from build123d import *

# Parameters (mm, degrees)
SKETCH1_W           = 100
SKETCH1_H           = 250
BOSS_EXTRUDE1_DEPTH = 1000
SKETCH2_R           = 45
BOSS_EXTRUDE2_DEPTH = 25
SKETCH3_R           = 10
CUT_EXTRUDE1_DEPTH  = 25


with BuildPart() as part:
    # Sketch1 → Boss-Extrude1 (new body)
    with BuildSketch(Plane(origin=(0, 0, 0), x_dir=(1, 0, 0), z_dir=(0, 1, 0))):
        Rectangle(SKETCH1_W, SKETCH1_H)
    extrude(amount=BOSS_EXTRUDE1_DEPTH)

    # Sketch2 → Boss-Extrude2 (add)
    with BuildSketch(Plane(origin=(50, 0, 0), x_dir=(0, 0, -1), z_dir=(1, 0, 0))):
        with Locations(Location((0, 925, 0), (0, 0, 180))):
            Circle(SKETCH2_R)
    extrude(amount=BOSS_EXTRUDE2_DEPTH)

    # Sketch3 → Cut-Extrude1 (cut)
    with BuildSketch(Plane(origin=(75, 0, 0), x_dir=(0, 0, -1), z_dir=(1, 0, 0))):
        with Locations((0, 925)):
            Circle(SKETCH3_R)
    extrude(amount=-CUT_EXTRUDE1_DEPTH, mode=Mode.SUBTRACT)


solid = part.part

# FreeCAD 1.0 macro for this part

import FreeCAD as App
import Part
import Sketcher
Q = App.Units.Quantity

doc = App.newDocument("Part")
body = doc.addObject("PartDesign::Body", "Body")

# Sketch on XZ plane
sketch1 = doc.addObject("Sketcher::SketchObject", "Sketch")
body.addObject(sketch1)
sketch1.AttachmentSupport = (doc.XZ_Plane, [""])
sketch1.MapMode = "FlatFace"
sketch1.addGeometry(Part.LineSegment(App.Vector(-50, -125, 0), App.Vector(-50, 125, 0)), False)
sketch1.addGeometry(Part.LineSegment(App.Vector(-50, 125, 0), App.Vector(50, 125, 0)), False)
sketch1.addGeometry(Part.LineSegment(App.Vector(50, 125, 0), App.Vector(50, -125, 0)), False)
sketch1.addGeometry(Part.LineSegment(App.Vector(50, -125, 0), App.Vector(-50, -125, 0)), False)
sketch1.addConstraint(Sketcher.Constraint("Coincident", 0, 2, 1, 1))
sketch1.addConstraint(Sketcher.Constraint("Coincident", 1, 2, 2, 1))
sketch1.addConstraint(Sketcher.Constraint("Coincident", 2, 2, 3, 1))
sketch1.addConstraint(Sketcher.Constraint("Coincident", 3, 2, 0, 1))
sketch1.addConstraint(Sketcher.Constraint("Vertical", 0))
sketch1.addConstraint(Sketcher.Constraint("Horizontal", 1))
sketch1.addConstraint(Sketcher.Constraint("Vertical", 2))
sketch1.addConstraint(Sketcher.Constraint("Horizontal", 3))
sketch1.addConstraint(Sketcher.Constraint("Symmetric", 0, 2, 2, 2, -1, 1))
sketch1.addConstraint(Sketcher.Constraint("DistanceX", 1, 1, 1, 2, Q("100 mm")))
sketch1.addConstraint(Sketcher.Constraint("DistanceY", 0, 1, 0, 2, Q("250 mm")))
pad1 = doc.addObject("PartDesign::Pad", "Pad")
body.addObject(pad1)
pad1.Profile = sketch1
pad1.Length = 1000
pad1.Reversed = True

# Sketch on YZ plane
sketch2 = doc.addObject("Sketcher::SketchObject", "Sketch001")
body.addObject(sketch2)
sketch2.AttachmentSupport = (doc.YZ_Plane, [""])
sketch2.MapMode = "FlatFace"
sketch2.AttachmentOffset = App.Placement(App.Vector(0, 0, 50), App.Rotation())
sketch2.addGeometry(Part.Circle(App.Vector(925, 0, 0), App.Vector(0, 0, 1), 45), False)
sketch2.addConstraint(Sketcher.Constraint("PointOnObject", 0, 3, -1))
sketch2.addConstraint(Sketcher.Constraint("Diameter", 0, Q("90 mm")))
sketch2.addConstraint(Sketcher.Constraint("DistanceX", -1, 1, 0, 3, Q("925 mm")))
pad2 = doc.addObject("PartDesign::Pad", "Pad001")
body.addObject(pad2)
pad2.Profile = sketch2
pad2.Length = 25

# Sketch on YZ plane
sketch3 = doc.addObject("Sketcher::SketchObject", "Sketch002")
body.addObject(sketch3)
sketch3.AttachmentSupport = (doc.YZ_Plane, [""])
sketch3.MapMode = "FlatFace"
sketch3.AttachmentOffset = App.Placement(App.Vector(0, 0, 75), App.Rotation())
sketch3.addGeometry(Part.Circle(App.Vector(925, 0, 0), App.Vector(0, 0, 1), 10), False)
sketch3.addConstraint(Sketcher.Constraint("PointOnObject", 0, 3, -1))
sketch3.addConstraint(Sketcher.Constraint("Diameter", 0, Q("20 mm")))
sketch3.addConstraint(Sketcher.Constraint("DistanceX", -1, 1, 0, 3, Q("925 mm")))
pocket1 = doc.addObject("PartDesign::Pocket", "Pocket")
body.addObject(pocket1)
pocket1.Profile = sketch3
pocket1.Length = 25

doc.recompute()
